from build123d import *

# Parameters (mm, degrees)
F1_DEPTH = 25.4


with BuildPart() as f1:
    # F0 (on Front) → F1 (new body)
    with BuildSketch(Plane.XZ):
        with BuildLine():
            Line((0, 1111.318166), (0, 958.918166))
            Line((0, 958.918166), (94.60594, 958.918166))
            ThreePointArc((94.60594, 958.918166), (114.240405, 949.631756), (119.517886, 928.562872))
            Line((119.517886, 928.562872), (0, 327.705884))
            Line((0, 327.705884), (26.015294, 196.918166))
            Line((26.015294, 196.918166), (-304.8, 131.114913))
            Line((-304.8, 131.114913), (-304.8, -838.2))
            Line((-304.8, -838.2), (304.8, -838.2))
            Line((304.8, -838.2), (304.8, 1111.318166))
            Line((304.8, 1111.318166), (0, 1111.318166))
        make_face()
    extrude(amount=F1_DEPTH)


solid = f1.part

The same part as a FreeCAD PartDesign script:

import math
import FreeCAD as App
import Part
import Sketcher

V = App.Vector
Q = App.Units.Quantity

doc = App.newDocument("Part")
params = doc.addObject("Spreadsheet::Sheet", "Params")
for row, (alias, value) in enumerate([
    ("sketch1_radius", "1 in"),
    ("sketch1_width", "24 in"),
    ("sketch1_width2", "12 in"),
    ("sketch1_height", "6 in"),
    ("sketch1_length", "5.25 in"),
    ("pad1_length", "1 in"),
], start=1):
    params.set(f"A{row}", alias)
    params.set(f"B{row}", "=" + value)
    params.setAlias(f"B{row}", alias)

body = doc.addObject("PartDesign::Body", "Body")

# Sketch on XZ plane
sketch1 = body.newObject("Sketcher::SketchObject", "Sketch")
sketch1.AttachmentSupport = (doc.getObject("XZ_Plane"), [""])
sketch1.MapMode = "FlatFace"
sketch1.addGeometry(Part.LineSegment(V(0, 1111.318166, 0), V(0, 958.918166, 0)), False)
sketch1.addGeometry(Part.LineSegment(V(0, 958.918166, 0), V(94.60594, 958.918166, 0)), False)
sketch1.addGeometry(Part.ArcOfCircle(Part.Circle(V(94.60594, 933.518166, 0), V(0, 0, 1), 25.4), math.radians(-11.25), math.radians(90)), False)
sketch1.addGeometry(Part.LineSegment(V(119.517886, 928.562872, 0), V(0, 327.705884, 0)), False)
sketch1.addGeometry(Part.LineSegment(V(0, 327.705884, 0), V(26.015294, 196.918166, 0)), False)
sketch1.addGeometry(Part.LineSegment(V(26.015294, 196.918166, 0), V(-304.8, 131.114913, 0)), False)
sketch1.addGeometry(Part.LineSegment(V(-304.8, 131.114913, 0), V(-304.8, -838.2, 0)), False)
sketch1.addGeometry(Part.LineSegment(V(-304.8, -838.2, 0), V(304.8, -838.2, 0)), False)
sketch1.addGeometry(Part.LineSegment(V(304.8, -838.2, 0), V(304.8, 1111.318166, 0)), False)
sketch1.addGeometry(Part.LineSegment(V(304.8, 1111.318166, 0), V(0, 1111.318166, 0)), False)
sketch1.addConstraint(Sketcher.Constraint("Coincident", 0, 2, 1, 1))
sketch1.addConstraint(Sketcher.Constraint("Tangent", 1, 2, 2, 2))
sketch1.addConstraint(Sketcher.Constraint("Tangent", 2, 1, 3, 1))
sketch1.addConstraint(Sketcher.Constraint("Coincident", 3, 2, 4, 1))
sketch1.addConstraint(Sketcher.Constraint("Coincident", 4, 2, 5, 1))
sketch1.addConstraint(Sketcher.Constraint("Coincident", 5, 2, 6, 1))
sketch1.addConstraint(Sketcher.Constraint("Coincident", 6, 2, 7, 1))
sketch1.addConstraint(Sketcher.Constraint("Coincident", 7, 2, 8, 1))
sketch1.addConstraint(Sketcher.Constraint("Coincident", 8, 2, 9, 1))
sketch1.addConstraint(Sketcher.Constraint("Coincident", 9, 2, 0, 1))
sketch1.addConstraint(Sketcher.Constraint("Vertical", 0))
sketch1.addConstraint(Sketcher.Constraint("Horizontal", 1))
sketch1.addConstraint(Sketcher.Constraint("Vertical", 6))
sketch1.addConstraint(Sketcher.Constraint("Horizontal", 7))
sketch1.addConstraint(Sketcher.Constraint("Vertical", 8))
sketch1.addConstraint(Sketcher.Constraint("Horizontal", 9))
sketch1.addConstraint(Sketcher.Constraint("PointOnObject", 0, 2, -2))
sketch1.addConstraint(Sketcher.Constraint("PointOnObject", 3, 2, -2))
sketch1.addConstraint(Sketcher.Constraint("Perpendicular", 4, 5))
sketch1.addConstraint(Sketcher.Constraint("Radius", 2, Q("1 in")))
sketch1.addConstraint(Sketcher.Constraint("DistanceX", 7, 1, 7, 2, Q("24 in")))
sketch1.addConstraint(Sketcher.Constraint("DistanceX", 9, 2, 9, 1, Q("12 in")))
sketch1.addConstraint(Sketcher.Constraint("DistanceY", 0, 2, 0, 1, Q("6 in")))
sketch1.addConstraint(Sketcher.Constraint("DistanceY", 6, 2, -1, 1, Q("33 in")))
sketch1.addConstraint(Sketcher.Constraint("DistanceY", 4, 2, 2, 3, Q("29 in")))
sketch1.addConstraint(Sketcher.Constraint("Distance", 4, Q("5.25 in")))
sketch1.addConstraint(Sketcher.Constraint("Angle", 3, Q("-101.25 deg")))
sketch1.addConstraint(Sketcher.Constraint("Angle", 4, Q("-78.75 deg")))
sketch1.addConstraint(Sketcher.Constraint("DistanceY", 6, 2, 6, 1, Q("969.314913 mm")))
sketch1.setExpression("Constraints[19]", "Params.sketch1_radius")
sketch1.setExpression("Constraints[20]", "Params.sketch1_width")
sketch1.setExpression("Constraints[21]", "Params.sketch1_width2")
sketch1.setExpression("Constraints[22]", "Params.sketch1_height")
sketch1.setExpression("Constraints[25]", "Params.sketch1_length")
pad1 = body.newObject("PartDesign::Pad", "Pad")
pad1.Profile = sketch1
pad1.setExpression("Length", "Params.pad1_length")

doc.recompute()
